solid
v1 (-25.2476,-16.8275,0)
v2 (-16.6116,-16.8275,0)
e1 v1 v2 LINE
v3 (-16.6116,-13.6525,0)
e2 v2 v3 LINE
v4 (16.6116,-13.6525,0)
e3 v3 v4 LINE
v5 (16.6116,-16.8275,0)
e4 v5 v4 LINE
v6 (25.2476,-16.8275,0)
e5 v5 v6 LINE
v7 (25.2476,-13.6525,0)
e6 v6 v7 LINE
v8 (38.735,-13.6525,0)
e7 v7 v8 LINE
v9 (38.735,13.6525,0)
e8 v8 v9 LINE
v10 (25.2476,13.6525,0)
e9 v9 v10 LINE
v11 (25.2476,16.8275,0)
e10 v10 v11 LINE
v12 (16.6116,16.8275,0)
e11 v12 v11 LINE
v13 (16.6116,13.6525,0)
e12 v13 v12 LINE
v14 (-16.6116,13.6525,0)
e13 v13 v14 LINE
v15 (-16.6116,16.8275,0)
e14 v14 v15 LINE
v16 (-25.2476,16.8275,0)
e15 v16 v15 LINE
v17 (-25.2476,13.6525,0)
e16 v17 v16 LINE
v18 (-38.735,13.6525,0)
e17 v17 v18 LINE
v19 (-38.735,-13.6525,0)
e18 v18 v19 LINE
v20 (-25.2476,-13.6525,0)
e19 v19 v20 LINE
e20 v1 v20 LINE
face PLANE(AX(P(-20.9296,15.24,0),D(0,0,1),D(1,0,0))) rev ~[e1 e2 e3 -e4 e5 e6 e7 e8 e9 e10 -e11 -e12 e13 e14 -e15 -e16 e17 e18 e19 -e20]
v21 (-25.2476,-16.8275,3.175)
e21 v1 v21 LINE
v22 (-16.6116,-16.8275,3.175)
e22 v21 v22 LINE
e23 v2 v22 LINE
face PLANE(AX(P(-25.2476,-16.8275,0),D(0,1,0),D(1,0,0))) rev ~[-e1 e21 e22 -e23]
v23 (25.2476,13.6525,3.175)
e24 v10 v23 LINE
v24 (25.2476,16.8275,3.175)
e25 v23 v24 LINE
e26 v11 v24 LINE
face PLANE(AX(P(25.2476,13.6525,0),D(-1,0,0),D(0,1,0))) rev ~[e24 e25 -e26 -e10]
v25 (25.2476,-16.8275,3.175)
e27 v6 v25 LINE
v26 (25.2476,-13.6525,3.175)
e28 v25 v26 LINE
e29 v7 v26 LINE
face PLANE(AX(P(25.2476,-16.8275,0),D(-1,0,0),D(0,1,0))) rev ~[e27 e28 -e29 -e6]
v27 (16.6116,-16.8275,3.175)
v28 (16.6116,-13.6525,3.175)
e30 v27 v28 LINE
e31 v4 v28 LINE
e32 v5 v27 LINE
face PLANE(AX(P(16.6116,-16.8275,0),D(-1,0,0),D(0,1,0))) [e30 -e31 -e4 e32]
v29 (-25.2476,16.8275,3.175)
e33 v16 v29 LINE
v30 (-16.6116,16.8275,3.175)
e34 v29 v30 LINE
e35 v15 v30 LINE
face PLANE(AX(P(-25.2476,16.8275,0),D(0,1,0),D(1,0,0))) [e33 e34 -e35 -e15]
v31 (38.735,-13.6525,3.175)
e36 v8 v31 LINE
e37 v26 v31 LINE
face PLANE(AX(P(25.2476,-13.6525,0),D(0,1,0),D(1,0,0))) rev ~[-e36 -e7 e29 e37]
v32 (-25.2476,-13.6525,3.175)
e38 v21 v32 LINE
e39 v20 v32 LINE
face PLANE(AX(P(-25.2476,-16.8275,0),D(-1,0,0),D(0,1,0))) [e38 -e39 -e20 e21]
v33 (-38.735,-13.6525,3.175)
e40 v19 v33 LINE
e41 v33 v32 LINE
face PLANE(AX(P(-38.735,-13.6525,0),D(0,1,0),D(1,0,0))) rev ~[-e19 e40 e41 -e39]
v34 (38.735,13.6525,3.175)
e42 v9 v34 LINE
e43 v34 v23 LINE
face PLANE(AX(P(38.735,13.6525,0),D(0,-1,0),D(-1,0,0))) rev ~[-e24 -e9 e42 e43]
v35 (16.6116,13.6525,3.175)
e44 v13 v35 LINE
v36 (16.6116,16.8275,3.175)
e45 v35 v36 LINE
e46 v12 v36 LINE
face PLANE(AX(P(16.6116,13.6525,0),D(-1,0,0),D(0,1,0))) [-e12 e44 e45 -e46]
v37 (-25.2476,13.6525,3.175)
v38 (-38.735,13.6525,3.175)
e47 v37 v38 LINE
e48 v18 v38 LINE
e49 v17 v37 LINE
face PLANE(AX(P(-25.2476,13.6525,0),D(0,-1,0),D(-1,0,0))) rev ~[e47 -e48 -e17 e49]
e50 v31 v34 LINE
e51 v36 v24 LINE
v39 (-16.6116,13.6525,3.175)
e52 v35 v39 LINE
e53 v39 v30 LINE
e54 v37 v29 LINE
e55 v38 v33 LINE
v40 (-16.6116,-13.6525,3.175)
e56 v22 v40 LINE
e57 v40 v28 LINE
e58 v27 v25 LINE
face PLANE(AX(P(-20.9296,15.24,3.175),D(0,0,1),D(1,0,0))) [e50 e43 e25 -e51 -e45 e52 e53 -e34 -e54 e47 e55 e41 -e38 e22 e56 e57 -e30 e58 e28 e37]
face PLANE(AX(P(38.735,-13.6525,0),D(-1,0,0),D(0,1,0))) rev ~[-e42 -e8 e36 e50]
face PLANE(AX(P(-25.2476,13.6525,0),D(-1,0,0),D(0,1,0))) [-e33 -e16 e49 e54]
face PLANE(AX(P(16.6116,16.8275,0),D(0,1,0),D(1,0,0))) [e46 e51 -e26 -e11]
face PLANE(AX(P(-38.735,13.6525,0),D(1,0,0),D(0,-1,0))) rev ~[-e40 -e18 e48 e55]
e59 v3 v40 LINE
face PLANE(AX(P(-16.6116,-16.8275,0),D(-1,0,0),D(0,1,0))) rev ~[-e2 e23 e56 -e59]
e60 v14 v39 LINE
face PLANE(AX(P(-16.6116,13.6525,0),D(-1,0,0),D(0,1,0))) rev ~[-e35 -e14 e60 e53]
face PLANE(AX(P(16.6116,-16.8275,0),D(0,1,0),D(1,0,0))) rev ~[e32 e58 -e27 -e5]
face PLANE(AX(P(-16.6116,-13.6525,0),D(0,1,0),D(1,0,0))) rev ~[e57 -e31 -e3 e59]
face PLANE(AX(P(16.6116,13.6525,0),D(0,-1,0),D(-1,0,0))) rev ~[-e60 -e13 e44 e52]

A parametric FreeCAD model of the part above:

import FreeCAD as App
import Part
import Sketcher
Q = App.Units.Quantity

doc = App.newDocument("Part")
params = doc.addObject("Spreadsheet::Sheet", "Params")
for row, (alias, value) in enumerate([
    ("sketch1_width", "0.34 in"),
    ("sketch1_width2", "0.531 in"),
    ("sketch1_width3", "1.308 in"),
    ("sketch1_height", "0.125 in"),
    ("pad1_length", "0.125 in"),
], start=1):
    params.set(f"A{row}", alias)
    params.set(f"B{row}", "=" + value)
    params.setAlias(f"B{row}", alias)

body = doc.addObject("PartDesign::Body", "Body")

# Sketch on XY plane
sketch1 = body.newObject("Sketcher::SketchObject", "Sketch")
sketch1.AttachmentSupport = (doc.getObject("XY_Plane"), [""])
sketch1.MapMode = "FlatFace"
sketch1.addGeometry([
    Part.LineSegment(App.Vector(-25.2476, 16.8275, 0), App.Vector(-25.2476, 13.6525, 0)),  # 0
    Part.LineSegment(App.Vector(-25.2476, 13.6525, 0), App.Vector(-38.735, 13.6525, 0)),  # 1
    Part.LineSegment(App.Vector(-38.735, 13.6525, 0), App.Vector(-38.735, -13.6525, 0)),  # 2
    Part.LineSegment(App.Vector(-38.735, -13.6525, 0), App.Vector(-25.2476, -13.6525, 0)),  # 3
    Part.LineSegment(App.Vector(-25.2476, -13.6525, 0), App.Vector(-25.2476, -16.8275, 0)),  # 4
    Part.LineSegment(App.Vector(-25.2476, -16.8275, 0), App.Vector(-16.6116, -16.8275, 0)),  # 5
    Part.LineSegment(App.Vector(-16.6116, -16.8275, 0), App.Vector(-16.6116, -13.6525, 0)),  # 6
    Part.LineSegment(App.Vector(-16.6116, -13.6525, 0), App.Vector(16.6116, -13.6525, 0)),  # 7
    Part.LineSegment(App.Vector(16.6116, -13.6525, 0), App.Vector(16.6116, -16.8275, 0)),  # 8
    Part.LineSegment(App.Vector(16.6116, -16.8275, 0), App.Vector(25.2476, -16.8275, 0)),  # 9
    Part.LineSegment(App.Vector(25.2476, -16.8275, 0), App.Vector(25.2476, -13.6525, 0)),  # 10
    Part.LineSegment(App.Vector(25.2476, -13.6525, 0), App.Vector(38.735, -13.6525, 0)),  # 11
    Part.LineSegment(App.Vector(38.735, -13.6525, 0), App.Vector(38.735, 13.6525, 0)),  # 12
    Part.LineSegment(App.Vector(38.735, 13.6525, 0), App.Vector(25.2476, 13.6525, 0)),  # 13
    Part.LineSegment(App.Vector(25.2476, 13.6525, 0), App.Vector(25.2476, 16.8275, 0)),  # 14
    Part.LineSegment(App.Vector(25.2476, 16.8275, 0), App.Vector(16.6116, 16.8275, 0)),  # 15
    Part.LineSegment(App.Vector(16.6116, 16.8275, 0), App.Vector(16.6116, 13.6525, 0)),  # 16
    Part.LineSegment(App.Vector(16.6116, 13.6525, 0), App.Vector(-16.6116, 13.6525, 0)),  # 17
    Part.LineSegment(App.Vector(-16.6116, 13.6525, 0), App.Vector(-16.6116, 16.8275, 0)),  # 18
    Part.LineSegment(App.Vector(-16.6116, 16.8275, 0), App.Vector(-25.2476, 16.8275, 0)),  # 19
], False)
sketch1.addConstraint([
    Sketcher.Constraint("Coincident", 0, 2, 1, 1),
    Sketcher.Constraint("Coincident", 1, 2, 2, 1),
    Sketcher.Constraint("Coincident", 2, 2, 3, 1),
    Sketcher.Constraint("Coincident", 3, 2, 4, 1),
    Sketcher.Constraint("Coincident", 4, 2, 5, 1),
    Sketcher.Constraint("Coincident", 5, 2, 6, 1),
    Sketcher.Constraint("Coincident", 6, 2, 7, 1),
    Sketcher.Constraint("Coincident", 7, 2, 8, 1),
    Sketcher.Constraint("Coincident", 8, 2, 9, 1),
    Sketcher.Constraint("Coincident", 9, 2, 10, 1),
    Sketcher.Constraint("Coincident", 10, 2, 11, 1),
    Sketcher.Constraint("Coincident", 11, 2, 12, 1),
    Sketcher.Constraint("Coincident", 12, 2, 13, 1),
    Sketcher.Constraint("Coincident", 13, 2, 14, 1),
    Sketcher.Constraint("Coincident", 14, 2, 15, 1),
    Sketcher.Constraint("Coincident", 15, 2, 16, 1),
    Sketcher.Constraint("Coincident", 16, 2, 17, 1),
    Sketcher.Constraint("Coincident", 17, 2, 18, 1),
    Sketcher.Constraint("Coincident", 18, 2, 19, 1),
    Sketcher.Constraint("Coincident", 19, 2, 0, 1),
    Sketcher.Constraint("Vertical", 0),
    Sketcher.Constraint("Horizontal", 1),
    Sketcher.Constraint("Vertical", 2),
    Sketcher.Constraint("Horizontal", 3),
    Sketcher.Constraint("Vertical", 4),
    Sketcher.Constraint("Horizontal", 5),
    Sketcher.Constraint("Vertical", 6),
    Sketcher.Constraint("Horizontal", 7),
    Sketcher.Constraint("Vertical", 8),
    Sketcher.Constraint("Horizontal", 9),
    Sketcher.Constraint("Vertical", 10),
    Sketcher.Constraint("Horizontal", 11),
    Sketcher.Constraint("Vertical", 12),
    Sketcher.Constraint("Horizontal", 13),
    Sketcher.Constraint("Vertical", 14),
    Sketcher.Constraint("Horizontal", 15),
    Sketcher.Constraint("Vertical", 16),
    Sketcher.Constraint("Horizontal", 17),
    Sketcher.Constraint("Vertical", 18),
    Sketcher.Constraint("Horizontal", 19),
    Sketcher.Constraint("Symmetric", 0, 2, 10, 2, -1, 1),
    Sketcher.Constraint("Symmetric", 2, 2, 12, 2, -1, 1),
    Sketcher.Constraint("Symmetric", 4, 2, 14, 2, -1, 1),
    Sketcher.Constraint("Symmetric", 6, 2, 16, 2, -1, 1),
    Sketcher.Constraint("Symmetric", 8, 2, 18, 2, -1, 1),
    Sketcher.Constraint("Symmetric", 5, 2, 8, 2, -2),
    Sketcher.Constraint("Symmetric", 3, 2, 10, 2, -2),
    Sketcher.Constraint("Horizontal", 3, 2, 6, 2),
    Sketcher.Constraint("DistanceX", 5, 1, 5, 2, Q("0.34 in")),
    Sketcher.Constraint("DistanceY", 4, 2, 0, 2, Q("1.2 in")),
    Sketcher.Constraint("DistanceX", 1, 2, 1, 1, Q("0.531 in")),
    Sketcher.Constraint("DistanceX", 7, 1, 7, 2, Q("1.308 in")),
    Sketcher.Constraint("DistanceY", 0, 2, 0, 1, Q("0.125 in")),
])
sketch1.setExpression("Constraints[48]", "Params.sketch1_width")
sketch1.setExpression("Constraints[50]", "Params.sketch1_width2")
sketch1.setExpression("Constraints[51]", "Params.sketch1_width3")
sketch1.setExpression("Constraints[52]", "Params.sketch1_height")
pad1 = body.newObject("PartDesign::Pad", "Pad")
pad1.Profile = sketch1
pad1.setExpression("Length", "Params.pad1_length")

doc.recompute()
